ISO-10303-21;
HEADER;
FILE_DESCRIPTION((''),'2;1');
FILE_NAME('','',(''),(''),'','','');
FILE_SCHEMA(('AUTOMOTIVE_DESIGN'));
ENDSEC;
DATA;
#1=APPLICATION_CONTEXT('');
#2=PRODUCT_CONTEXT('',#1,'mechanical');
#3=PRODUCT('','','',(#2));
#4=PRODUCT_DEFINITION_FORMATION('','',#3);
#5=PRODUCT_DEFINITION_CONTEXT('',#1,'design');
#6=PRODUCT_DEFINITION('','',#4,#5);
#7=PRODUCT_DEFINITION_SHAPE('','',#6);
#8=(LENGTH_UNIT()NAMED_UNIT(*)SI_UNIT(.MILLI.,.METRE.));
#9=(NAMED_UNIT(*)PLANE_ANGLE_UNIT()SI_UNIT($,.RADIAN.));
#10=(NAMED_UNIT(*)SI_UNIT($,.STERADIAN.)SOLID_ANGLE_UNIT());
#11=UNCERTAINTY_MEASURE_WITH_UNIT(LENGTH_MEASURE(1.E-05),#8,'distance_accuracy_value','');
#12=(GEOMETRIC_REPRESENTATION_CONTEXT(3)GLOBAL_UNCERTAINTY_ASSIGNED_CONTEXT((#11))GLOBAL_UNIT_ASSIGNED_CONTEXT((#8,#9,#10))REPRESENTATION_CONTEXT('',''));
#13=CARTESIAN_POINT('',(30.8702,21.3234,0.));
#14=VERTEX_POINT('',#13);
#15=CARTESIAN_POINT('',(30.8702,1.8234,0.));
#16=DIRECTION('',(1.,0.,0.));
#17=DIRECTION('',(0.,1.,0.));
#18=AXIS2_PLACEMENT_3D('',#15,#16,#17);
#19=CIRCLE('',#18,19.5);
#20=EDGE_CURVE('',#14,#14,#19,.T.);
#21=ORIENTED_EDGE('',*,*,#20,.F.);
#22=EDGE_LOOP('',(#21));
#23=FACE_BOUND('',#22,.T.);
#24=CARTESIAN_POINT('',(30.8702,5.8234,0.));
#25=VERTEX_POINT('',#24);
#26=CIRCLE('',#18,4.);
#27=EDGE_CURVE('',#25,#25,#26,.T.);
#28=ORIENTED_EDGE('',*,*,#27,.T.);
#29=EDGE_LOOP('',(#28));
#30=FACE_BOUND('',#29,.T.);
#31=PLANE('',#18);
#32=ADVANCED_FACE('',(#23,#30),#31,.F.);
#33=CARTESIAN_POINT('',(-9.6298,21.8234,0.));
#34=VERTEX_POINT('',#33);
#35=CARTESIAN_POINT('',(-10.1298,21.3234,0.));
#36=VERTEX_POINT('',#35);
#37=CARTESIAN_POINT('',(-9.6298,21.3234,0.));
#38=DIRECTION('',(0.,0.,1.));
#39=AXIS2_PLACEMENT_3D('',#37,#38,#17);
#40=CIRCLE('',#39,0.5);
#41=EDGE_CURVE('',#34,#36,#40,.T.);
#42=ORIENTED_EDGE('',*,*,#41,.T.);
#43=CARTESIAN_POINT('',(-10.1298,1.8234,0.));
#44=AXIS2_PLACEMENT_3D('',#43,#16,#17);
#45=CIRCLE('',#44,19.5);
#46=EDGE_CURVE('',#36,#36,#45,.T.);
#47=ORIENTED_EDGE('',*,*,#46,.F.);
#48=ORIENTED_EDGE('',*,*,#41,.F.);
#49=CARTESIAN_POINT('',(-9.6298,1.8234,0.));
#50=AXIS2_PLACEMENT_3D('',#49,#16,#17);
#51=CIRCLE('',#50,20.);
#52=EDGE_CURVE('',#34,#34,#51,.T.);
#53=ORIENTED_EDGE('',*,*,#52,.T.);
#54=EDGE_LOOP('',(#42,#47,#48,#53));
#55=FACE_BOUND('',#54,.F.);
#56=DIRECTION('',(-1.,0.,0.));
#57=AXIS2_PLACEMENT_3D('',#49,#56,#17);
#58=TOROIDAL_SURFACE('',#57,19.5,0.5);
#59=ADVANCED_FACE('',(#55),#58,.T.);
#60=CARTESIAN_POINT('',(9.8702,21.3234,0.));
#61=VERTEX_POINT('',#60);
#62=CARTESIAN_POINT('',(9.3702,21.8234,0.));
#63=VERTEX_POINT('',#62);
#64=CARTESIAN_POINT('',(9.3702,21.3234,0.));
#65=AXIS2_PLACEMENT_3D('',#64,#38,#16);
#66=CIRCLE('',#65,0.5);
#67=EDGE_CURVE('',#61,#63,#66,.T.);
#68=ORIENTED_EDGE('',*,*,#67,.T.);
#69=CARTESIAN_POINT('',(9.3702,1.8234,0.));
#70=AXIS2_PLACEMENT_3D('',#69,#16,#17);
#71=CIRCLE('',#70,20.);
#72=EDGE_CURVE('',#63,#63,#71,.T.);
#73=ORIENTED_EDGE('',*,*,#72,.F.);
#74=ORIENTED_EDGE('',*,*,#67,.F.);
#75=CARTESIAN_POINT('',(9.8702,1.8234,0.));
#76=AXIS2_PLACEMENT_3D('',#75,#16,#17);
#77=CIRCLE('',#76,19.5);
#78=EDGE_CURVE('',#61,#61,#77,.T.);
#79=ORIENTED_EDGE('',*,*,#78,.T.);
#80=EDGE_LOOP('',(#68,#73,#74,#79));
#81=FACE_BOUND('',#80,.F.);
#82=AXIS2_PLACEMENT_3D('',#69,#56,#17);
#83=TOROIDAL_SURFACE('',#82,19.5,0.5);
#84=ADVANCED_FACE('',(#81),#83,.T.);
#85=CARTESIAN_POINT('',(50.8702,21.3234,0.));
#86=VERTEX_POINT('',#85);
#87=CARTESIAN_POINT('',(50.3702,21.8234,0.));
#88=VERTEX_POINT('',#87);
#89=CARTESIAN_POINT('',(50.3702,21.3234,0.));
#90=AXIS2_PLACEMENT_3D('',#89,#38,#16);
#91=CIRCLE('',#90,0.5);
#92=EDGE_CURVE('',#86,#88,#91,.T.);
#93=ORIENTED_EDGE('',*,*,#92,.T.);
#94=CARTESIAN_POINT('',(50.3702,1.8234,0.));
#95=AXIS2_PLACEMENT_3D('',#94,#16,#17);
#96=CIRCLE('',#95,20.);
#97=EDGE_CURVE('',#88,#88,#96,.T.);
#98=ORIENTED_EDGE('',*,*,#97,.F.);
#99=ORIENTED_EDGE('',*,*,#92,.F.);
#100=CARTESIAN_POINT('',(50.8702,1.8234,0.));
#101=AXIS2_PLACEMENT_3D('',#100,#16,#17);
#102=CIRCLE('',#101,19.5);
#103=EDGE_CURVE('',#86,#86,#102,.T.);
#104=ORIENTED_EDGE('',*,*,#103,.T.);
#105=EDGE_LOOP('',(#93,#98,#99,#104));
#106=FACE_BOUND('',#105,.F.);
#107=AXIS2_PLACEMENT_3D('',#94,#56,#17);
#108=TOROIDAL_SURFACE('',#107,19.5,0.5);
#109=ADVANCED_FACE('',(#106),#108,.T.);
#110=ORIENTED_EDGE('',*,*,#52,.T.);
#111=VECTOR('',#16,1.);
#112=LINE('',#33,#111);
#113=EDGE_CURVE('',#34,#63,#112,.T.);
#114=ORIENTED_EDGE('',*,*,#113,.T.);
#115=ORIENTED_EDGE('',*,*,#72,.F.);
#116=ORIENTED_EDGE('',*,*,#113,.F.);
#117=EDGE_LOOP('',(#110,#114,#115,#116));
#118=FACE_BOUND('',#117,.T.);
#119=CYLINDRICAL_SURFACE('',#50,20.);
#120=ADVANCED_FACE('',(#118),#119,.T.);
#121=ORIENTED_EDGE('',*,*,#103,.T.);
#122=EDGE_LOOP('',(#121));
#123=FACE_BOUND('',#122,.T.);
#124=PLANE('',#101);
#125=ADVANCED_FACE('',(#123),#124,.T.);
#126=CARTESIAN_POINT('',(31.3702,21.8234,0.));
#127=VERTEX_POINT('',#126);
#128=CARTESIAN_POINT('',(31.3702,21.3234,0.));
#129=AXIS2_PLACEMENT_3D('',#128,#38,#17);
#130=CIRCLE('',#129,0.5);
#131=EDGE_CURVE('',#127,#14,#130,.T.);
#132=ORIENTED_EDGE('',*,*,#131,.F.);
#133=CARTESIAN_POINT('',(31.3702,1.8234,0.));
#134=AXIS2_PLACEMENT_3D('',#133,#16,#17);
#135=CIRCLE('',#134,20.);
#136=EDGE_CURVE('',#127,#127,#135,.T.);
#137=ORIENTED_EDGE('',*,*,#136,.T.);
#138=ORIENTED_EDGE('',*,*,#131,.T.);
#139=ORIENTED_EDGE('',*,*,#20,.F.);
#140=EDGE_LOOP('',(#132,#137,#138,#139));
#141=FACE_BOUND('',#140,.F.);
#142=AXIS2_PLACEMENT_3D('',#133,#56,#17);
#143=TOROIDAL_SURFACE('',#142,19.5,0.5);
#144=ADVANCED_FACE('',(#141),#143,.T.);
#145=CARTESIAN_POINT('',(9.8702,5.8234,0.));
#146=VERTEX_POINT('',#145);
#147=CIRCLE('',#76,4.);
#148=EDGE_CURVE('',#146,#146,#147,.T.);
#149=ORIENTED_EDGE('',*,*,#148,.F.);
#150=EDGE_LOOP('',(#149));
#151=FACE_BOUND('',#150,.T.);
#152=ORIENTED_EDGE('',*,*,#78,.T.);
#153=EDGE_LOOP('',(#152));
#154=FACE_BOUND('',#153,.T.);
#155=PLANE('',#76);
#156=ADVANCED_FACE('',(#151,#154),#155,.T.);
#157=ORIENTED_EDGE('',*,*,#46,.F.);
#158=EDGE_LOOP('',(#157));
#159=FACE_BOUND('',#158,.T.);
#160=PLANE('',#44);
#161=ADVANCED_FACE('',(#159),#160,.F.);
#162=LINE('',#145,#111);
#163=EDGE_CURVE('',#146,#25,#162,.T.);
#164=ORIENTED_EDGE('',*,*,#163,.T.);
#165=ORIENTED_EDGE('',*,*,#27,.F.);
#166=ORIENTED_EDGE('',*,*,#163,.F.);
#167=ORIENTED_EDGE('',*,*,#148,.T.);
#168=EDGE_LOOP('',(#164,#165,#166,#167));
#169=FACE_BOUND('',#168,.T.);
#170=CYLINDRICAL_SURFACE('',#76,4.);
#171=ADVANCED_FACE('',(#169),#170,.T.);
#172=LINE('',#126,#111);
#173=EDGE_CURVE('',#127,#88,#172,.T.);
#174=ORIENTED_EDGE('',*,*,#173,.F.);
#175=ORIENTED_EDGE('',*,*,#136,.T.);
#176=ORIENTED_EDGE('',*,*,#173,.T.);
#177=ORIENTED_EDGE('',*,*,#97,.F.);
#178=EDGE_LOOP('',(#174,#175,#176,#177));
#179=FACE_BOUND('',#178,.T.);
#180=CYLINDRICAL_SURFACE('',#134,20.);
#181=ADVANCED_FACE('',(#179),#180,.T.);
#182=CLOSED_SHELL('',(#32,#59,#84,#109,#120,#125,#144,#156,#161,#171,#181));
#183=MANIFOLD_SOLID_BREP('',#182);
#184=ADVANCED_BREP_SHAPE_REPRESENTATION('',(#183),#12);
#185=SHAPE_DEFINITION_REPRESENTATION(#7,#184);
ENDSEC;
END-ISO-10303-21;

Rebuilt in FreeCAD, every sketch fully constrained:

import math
import FreeCAD as App
import Part
import Sketcher
from FreeCAD import Vector
Q = App.Units.Quantity

doc = App.newDocument("Part")
body = doc.addObject("PartDesign::Body", "Body")

# Sketch on XY plane
sketch1 = body.newObject("Sketcher::SketchObject", "Sketch")
sketch1.AttachmentSupport = (doc.getObject("XY_Plane"), [""])
sketch1.MapMode = "FlatFace"
sketch1.addGeometry([
    Part.LineSegment(Vector(-10.1, 21.3, 0), Vector(-10.1, 1.8, 0)),  # 0
    Part.LineSegment(Vector(-10.1, 1.8, 0), Vector(50.9, 1.8, 0)),  # 1
    Part.LineSegment(Vector(50.9, 1.8, 0), Vector(50.9, 21.3, 0)),  # 2
    Part.ArcOfCircle(Part.Circle(Vector(50.4, 21.3, 0), Vector(0, 0, 1), 0.5), math.radians(0), math.radians(90)),  # 3
    Part.LineSegment(Vector(50.4, 21.8, 0), Vector(31.4, 21.8, 0)),  # 4
    Part.ArcOfCircle(Part.Circle(Vector(31.4, 21.3, 0), Vector(0, 0, 1), 0.5), math.radians(90), math.radians(180)),  # 5
    Part.LineSegment(Vector(30.9, 21.3, 0), Vector(30.9, 5.8, 0)),  # 6
    Part.LineSegment(Vector(30.9, 5.8, 0), Vector(9.9, 5.8, 0)),  # 7
    Part.LineSegment(Vector(9.9, 5.8, 0), Vector(9.9, 21.3, 0)),  # 8
    Part.ArcOfCircle(Part.Circle(Vector(9.4, 21.3, 0), Vector(0, 0, 1), 0.5), math.radians(0), math.radians(90)),  # 9
    Part.LineSegment(Vector(9.4, 21.8, 0), Vector(-9.6, 21.8, 0)),  # 10
    Part.ArcOfCircle(Part.Circle(Vector(-9.6, 21.3, 0), Vector(0, 0, 1), 0.5), math.radians(90), math.radians(180)),  # 11
], False)
sketch1.addGeometry(Part.LineSegment(Vector(-10.1, 1.8, 0), Vector(50.9, 1.8, 0)), True)  # axis
sketch1.addConstraint([
    Sketcher.Constraint("Coincident", 0, 2, 1, 1),
    Sketcher.Constraint("Coincident", 1, 2, 2, 1),
    Sketcher.Constraint("Tangent", 2, 2, 3, 1),
    Sketcher.Constraint("Tangent", 3, 2, 4, 1),
    Sketcher.Constraint("Tangent", 4, 2, 5, 1),
    Sketcher.Constraint("Tangent", 5, 2, 6, 1),
    Sketcher.Constraint("Coincident", 6, 2, 7, 1),
    Sketcher.Constraint("Coincident", 7, 2, 8, 1),
    Sketcher.Constraint("Tangent", 8, 2, 9, 1),
    Sketcher.Constraint("Tangent", 9, 2, 10, 1),
    Sketcher.Constraint("Tangent", 10, 2, 11, 1),
    Sketcher.Constraint("Tangent", 11, 2, 0, 1),
    Sketcher.Constraint("Vertical", 0),
    Sketcher.Constraint("Horizontal", 1),
    Sketcher.Constraint("Vertical", 2),
    Sketcher.Constraint("Horizontal", 4),
    Sketcher.Constraint("Vertical", 6),
    Sketcher.Constraint("Horizontal", 7),
    Sketcher.Constraint("Vertical", 8),
    Sketcher.Constraint("Horizontal", 10),
    Sketcher.Constraint("Horizontal", 12),
    Sketcher.Constraint("Coincident", 12, 1, 0, 2),
    Sketcher.Constraint("Equal", 3, 5),
    Sketcher.Constraint("Equal", 5, 9),
    Sketcher.Constraint("Equal", 9, 11),
    Sketcher.Constraint("Horizontal", 5, 3, 9, 3),
    Sketcher.Constraint("Vertical", 2, 2, 12, 2),
    Sketcher.Constraint("Equal", 4, 10),
    Sketcher.Constraint("Radius", 3, Q("0.5 mm")),
    Sketcher.Constraint("DistanceX", 1, 1, 1, 2, Q("61 mm")),
    Sketcher.Constraint("DistanceX", 7, 2, 7, 1, Q("21 mm")),
    Sketcher.Constraint("DistanceY", 1, 2, 3, 2, Q("20 mm")),
    Sketcher.Constraint("DistanceY", 1, 2, 6, 2, Q("4 mm")),
    Sketcher.Constraint("DistanceX", -1, 1, 3, 3, Q("50.3702 mm")),
    Sketcher.Constraint("DistanceY", -1, 1, 3, 3, Q("21.3234 mm")),
])
revolution = body.newObject("PartDesign::Revolution", "Revolution")
revolution.Profile = sketch1
revolution.ReferenceAxis = (sketch1, ["Axis0"])
revolution.Angle = 360

doc.recompute()
